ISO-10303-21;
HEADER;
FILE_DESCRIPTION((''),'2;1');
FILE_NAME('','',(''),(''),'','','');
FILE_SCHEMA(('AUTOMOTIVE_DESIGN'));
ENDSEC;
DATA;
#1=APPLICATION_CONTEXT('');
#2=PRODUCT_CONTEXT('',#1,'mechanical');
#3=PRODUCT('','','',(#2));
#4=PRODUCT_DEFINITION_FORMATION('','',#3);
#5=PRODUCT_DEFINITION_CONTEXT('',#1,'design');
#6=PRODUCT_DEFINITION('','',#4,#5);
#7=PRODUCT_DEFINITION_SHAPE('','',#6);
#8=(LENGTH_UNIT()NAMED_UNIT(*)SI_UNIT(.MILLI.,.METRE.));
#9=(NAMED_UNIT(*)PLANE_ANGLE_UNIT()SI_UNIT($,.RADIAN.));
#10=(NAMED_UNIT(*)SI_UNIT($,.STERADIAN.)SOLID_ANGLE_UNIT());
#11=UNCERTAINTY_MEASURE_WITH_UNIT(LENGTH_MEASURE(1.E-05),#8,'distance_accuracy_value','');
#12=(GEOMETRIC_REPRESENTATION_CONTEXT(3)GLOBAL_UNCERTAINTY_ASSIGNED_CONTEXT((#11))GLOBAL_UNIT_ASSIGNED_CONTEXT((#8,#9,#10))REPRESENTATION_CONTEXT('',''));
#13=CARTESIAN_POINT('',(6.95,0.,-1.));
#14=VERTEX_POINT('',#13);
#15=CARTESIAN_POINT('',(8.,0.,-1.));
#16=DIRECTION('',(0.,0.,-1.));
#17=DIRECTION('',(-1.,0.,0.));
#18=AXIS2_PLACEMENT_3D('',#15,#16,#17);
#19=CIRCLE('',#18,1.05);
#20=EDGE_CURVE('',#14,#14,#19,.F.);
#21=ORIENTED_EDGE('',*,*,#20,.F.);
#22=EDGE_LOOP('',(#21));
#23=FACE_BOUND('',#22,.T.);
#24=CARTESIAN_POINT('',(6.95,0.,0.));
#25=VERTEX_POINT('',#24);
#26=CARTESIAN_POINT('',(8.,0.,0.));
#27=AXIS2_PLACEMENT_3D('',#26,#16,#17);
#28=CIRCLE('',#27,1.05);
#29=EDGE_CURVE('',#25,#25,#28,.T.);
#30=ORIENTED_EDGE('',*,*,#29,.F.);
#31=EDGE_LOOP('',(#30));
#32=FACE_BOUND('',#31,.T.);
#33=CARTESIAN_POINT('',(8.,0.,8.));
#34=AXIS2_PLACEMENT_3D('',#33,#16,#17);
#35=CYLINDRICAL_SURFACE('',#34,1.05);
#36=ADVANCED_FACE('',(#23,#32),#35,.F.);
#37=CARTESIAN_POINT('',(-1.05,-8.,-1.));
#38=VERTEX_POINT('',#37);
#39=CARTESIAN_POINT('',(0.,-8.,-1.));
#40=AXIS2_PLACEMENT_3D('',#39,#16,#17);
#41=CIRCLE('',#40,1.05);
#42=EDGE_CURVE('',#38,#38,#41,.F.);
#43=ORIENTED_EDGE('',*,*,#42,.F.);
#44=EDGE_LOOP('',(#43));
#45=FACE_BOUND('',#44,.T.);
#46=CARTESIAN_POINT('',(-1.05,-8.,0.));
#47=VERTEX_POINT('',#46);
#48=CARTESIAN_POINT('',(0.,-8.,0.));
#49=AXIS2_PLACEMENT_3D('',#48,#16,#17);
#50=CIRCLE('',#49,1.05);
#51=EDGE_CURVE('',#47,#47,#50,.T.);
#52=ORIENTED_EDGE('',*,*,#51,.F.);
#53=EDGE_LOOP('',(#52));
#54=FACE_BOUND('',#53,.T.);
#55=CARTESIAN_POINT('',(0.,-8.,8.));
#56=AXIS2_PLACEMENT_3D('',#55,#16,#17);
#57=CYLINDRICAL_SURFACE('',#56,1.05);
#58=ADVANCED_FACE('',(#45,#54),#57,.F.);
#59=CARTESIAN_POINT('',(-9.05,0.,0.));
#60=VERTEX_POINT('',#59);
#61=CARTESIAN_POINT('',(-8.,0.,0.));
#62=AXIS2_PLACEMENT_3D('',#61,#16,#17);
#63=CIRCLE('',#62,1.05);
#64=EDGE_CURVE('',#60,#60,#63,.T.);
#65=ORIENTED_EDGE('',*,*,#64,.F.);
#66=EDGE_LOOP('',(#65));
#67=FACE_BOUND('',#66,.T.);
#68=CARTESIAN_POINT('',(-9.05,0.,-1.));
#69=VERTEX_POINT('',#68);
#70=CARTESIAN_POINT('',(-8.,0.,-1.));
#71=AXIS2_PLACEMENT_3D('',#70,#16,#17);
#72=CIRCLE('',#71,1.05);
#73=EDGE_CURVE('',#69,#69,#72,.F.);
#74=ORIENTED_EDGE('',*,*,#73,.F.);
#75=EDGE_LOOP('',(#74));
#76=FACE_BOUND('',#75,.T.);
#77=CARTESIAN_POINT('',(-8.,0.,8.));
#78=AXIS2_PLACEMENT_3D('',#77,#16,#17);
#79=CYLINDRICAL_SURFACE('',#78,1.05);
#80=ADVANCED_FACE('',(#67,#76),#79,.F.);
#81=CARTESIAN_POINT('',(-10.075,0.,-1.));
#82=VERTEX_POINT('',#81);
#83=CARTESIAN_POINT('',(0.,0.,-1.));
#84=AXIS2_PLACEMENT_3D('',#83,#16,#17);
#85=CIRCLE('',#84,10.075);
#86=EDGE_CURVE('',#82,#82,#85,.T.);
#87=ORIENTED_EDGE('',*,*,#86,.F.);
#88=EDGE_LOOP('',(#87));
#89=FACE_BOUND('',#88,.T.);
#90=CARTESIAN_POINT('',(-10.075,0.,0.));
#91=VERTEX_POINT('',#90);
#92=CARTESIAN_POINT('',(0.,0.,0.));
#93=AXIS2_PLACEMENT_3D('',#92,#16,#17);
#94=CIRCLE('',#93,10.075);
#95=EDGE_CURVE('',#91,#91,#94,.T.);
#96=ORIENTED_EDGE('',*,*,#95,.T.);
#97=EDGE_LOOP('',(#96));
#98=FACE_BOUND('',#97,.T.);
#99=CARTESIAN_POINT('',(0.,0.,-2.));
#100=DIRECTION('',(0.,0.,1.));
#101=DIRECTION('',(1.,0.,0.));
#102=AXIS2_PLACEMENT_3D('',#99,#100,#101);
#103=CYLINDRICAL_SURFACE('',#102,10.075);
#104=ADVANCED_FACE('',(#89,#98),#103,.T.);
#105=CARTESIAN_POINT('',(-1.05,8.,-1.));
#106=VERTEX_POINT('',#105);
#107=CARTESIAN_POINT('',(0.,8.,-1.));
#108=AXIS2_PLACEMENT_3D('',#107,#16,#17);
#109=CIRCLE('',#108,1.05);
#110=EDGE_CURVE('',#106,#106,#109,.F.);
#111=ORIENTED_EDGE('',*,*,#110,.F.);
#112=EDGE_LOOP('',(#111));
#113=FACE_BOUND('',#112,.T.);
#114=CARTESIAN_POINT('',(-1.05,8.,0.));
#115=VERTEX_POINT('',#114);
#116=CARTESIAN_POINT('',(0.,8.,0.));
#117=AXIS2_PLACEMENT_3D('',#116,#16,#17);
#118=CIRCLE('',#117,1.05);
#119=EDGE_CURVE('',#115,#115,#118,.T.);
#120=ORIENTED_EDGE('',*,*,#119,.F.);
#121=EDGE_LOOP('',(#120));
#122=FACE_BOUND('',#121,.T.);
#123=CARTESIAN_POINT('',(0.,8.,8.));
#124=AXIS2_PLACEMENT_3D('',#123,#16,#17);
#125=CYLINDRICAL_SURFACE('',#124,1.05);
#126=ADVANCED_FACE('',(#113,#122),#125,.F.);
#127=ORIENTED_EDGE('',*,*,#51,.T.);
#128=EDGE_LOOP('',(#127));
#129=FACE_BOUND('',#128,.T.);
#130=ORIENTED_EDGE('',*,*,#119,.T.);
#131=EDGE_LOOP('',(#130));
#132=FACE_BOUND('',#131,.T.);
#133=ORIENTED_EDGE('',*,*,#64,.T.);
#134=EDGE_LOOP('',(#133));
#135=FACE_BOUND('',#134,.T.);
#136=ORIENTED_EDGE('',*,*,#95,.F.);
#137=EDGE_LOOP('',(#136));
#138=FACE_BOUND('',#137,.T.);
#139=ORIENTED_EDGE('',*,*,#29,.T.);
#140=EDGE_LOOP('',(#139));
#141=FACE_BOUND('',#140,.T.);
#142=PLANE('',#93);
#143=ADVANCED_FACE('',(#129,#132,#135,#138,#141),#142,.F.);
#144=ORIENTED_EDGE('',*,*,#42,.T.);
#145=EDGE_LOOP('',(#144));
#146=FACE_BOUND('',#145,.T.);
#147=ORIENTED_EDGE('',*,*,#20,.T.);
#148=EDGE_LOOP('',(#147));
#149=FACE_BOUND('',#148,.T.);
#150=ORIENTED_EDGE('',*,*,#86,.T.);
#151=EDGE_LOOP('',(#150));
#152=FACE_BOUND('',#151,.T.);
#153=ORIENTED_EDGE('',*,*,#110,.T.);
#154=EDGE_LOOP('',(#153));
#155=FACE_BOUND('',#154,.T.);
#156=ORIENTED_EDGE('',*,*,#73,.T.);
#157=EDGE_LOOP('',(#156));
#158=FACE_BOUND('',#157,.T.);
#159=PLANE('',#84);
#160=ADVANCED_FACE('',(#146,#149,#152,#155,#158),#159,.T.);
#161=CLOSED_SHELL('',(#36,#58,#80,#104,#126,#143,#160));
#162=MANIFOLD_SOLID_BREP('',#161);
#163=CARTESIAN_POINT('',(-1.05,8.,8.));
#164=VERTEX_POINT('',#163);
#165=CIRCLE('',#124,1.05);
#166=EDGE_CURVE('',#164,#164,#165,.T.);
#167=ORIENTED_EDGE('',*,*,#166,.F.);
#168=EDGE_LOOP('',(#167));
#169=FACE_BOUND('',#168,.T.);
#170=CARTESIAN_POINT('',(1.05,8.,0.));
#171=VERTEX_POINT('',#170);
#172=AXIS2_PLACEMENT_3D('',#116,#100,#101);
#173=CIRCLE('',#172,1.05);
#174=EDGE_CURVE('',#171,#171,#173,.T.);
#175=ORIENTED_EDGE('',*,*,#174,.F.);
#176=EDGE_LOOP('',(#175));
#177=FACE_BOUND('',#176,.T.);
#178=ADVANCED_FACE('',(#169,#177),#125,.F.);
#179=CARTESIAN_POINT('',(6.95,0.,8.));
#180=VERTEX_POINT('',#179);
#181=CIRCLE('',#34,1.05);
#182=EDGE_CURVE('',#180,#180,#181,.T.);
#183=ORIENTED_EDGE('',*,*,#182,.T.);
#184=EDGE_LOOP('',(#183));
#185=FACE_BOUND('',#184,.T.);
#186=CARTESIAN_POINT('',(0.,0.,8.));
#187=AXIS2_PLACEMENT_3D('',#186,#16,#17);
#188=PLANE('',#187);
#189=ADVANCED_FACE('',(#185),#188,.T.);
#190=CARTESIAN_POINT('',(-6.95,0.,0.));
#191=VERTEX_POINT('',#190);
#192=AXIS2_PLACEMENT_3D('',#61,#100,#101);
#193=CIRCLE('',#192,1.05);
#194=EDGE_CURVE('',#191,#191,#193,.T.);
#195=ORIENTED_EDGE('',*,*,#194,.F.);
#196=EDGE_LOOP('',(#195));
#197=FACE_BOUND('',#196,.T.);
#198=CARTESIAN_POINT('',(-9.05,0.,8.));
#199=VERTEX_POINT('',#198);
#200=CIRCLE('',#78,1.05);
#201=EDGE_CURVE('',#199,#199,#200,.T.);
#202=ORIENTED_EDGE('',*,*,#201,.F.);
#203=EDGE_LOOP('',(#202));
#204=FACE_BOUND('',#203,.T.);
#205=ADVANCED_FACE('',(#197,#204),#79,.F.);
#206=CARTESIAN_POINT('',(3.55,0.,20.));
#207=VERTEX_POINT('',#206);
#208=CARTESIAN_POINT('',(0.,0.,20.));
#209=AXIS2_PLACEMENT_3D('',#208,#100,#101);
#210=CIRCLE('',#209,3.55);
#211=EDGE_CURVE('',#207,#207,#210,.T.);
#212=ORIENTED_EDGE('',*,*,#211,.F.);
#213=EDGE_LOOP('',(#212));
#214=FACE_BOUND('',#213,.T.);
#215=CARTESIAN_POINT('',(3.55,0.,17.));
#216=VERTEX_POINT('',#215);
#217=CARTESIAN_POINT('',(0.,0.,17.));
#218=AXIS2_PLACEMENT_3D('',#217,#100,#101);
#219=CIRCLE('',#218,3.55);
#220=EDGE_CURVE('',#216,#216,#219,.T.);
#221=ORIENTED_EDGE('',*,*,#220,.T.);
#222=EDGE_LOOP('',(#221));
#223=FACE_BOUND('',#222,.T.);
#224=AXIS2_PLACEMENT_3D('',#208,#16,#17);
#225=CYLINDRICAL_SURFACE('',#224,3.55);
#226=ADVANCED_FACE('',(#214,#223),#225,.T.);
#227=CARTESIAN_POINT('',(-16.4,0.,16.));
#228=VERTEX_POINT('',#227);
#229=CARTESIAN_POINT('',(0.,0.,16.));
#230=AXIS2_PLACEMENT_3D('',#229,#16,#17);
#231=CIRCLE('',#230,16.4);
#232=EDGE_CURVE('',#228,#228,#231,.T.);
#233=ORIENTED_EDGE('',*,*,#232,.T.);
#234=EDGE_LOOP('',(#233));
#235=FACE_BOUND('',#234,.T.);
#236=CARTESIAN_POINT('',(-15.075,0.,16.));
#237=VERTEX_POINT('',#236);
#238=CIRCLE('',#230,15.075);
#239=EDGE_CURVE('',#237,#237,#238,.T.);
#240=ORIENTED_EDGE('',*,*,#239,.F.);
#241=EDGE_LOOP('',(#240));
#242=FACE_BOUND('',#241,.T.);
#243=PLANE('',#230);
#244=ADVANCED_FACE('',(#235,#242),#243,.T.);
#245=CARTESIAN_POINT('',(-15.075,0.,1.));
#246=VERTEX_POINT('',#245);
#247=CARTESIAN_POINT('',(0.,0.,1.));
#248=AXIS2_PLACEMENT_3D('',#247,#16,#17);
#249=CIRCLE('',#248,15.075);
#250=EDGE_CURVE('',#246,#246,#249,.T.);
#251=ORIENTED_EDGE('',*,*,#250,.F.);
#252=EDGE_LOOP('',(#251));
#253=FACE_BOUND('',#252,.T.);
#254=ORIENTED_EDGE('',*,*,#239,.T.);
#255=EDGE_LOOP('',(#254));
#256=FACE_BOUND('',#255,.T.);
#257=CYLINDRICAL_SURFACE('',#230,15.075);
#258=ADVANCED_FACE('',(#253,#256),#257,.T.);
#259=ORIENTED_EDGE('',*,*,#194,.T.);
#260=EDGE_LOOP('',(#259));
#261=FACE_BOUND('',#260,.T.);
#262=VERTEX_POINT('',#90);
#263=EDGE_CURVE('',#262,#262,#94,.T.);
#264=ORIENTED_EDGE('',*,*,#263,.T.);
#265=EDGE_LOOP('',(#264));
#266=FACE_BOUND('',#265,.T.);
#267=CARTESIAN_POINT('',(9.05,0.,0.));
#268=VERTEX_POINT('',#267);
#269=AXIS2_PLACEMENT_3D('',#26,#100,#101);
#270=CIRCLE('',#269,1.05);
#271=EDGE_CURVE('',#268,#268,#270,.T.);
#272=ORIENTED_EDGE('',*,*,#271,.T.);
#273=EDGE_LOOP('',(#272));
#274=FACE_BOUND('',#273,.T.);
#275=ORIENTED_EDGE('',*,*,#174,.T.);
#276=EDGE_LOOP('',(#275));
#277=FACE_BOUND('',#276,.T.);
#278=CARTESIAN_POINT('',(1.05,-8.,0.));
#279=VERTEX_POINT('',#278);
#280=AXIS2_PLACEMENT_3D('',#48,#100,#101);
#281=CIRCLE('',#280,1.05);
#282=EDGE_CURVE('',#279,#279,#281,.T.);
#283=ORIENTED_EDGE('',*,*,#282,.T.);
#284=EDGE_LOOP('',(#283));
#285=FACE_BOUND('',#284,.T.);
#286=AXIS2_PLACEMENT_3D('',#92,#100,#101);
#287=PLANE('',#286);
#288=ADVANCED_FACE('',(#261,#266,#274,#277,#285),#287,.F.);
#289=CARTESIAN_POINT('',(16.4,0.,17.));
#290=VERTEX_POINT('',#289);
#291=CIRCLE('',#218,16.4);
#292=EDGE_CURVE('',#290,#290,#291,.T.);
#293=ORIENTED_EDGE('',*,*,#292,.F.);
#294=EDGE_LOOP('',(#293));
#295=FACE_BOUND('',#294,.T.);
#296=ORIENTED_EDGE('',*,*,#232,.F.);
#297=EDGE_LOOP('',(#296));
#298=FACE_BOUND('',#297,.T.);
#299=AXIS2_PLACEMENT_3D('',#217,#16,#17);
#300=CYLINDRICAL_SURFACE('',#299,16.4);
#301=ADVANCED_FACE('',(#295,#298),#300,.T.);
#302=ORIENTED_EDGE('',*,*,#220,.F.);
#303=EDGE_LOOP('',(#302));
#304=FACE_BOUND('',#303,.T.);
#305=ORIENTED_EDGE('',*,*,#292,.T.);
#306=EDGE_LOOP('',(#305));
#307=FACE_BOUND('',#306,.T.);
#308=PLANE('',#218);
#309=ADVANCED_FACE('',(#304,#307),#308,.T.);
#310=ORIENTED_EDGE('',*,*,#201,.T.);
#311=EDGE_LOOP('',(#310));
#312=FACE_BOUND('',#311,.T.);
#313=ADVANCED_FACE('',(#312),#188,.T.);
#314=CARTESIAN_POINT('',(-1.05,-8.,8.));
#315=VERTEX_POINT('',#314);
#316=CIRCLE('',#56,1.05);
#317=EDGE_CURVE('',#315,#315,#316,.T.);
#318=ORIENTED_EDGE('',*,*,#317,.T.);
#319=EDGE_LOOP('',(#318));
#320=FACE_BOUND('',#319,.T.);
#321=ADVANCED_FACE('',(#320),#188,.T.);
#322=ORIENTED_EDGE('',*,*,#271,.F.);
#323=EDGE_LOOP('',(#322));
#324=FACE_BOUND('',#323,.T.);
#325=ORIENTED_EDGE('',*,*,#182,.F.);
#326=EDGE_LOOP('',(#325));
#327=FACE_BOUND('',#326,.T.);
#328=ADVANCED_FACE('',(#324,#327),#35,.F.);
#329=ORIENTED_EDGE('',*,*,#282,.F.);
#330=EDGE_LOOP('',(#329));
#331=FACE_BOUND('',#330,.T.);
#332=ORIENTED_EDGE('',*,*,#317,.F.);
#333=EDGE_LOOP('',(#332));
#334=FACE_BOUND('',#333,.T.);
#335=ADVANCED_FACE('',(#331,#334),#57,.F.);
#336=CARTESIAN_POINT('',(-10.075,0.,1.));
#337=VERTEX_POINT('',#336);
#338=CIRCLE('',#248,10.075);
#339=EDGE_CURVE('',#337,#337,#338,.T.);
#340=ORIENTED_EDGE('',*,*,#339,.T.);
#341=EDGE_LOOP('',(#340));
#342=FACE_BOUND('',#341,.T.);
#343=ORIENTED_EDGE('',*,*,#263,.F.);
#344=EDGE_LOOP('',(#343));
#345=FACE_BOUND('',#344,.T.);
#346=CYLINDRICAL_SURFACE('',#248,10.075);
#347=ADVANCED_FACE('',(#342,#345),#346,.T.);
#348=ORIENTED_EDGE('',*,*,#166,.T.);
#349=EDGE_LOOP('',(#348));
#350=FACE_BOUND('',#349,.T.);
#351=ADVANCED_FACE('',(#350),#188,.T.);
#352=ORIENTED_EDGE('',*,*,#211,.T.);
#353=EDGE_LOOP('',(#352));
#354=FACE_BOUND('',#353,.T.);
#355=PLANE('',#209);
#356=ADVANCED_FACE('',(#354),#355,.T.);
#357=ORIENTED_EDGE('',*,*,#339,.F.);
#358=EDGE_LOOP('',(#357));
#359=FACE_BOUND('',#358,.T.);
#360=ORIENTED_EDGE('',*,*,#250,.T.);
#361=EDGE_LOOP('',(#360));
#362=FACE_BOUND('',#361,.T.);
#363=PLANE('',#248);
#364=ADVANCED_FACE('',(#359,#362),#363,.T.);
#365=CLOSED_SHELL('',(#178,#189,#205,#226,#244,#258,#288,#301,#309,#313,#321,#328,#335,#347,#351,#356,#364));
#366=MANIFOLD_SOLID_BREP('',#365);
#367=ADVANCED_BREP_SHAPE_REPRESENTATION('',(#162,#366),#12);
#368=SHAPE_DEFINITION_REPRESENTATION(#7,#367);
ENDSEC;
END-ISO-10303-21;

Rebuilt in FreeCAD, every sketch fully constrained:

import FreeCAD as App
import Part
import Sketcher

V = App.Vector

doc = App.newDocument("Part")
body = doc.addObject("PartDesign::Body", "Body")

# Sketch on XY plane
sketch1 = body.newObject("Sketcher::SketchObject", "Sketch")
sketch1.AttachmentSupport = (doc.getObject("XY_Plane"), [""])
sketch1.MapMode = "FlatFace"
sketch1.addGeometry(Part.Circle(V(0, 0, 0), V(0, 0, 1), 16), False)
sketch1.addConstraint(Sketcher.Constraint("Coincident", 0, 3, -1, 1))
sketch1.addConstraint(Sketcher.Constraint("Diameter", 0, 32.8))
pad1 = body.newObject("PartDesign::Pad", "Pad")
pad1.Profile = sketch1
pad1.Length = 17

# Sketch on XY plane
sketch2 = body.newObject("Sketcher::SketchObject", "Sketch001")
sketch2.AttachmentSupport = (doc.getObject("XY_Plane"), [""])
sketch2.MapMode = "FlatFace"
sketch2.AttachmentOffset = App.Placement(V(0, 0, 17), App.Rotation())
sketch2.addGeometry(Part.Circle(V(0, 0, 0), V(0, 0, 1), 3.5), False)
sketch2.addConstraint(Sketcher.Constraint("Coincident", 0, 3, -1, 1))
sketch2.addConstraint(Sketcher.Constraint("Diameter", 0, 7.1))
pad2 = body.newObject("PartDesign::Pad", "Pad001")
pad2.Profile = sketch2
pad2.Length = 3
body2 = doc.addObject("PartDesign::Body", "Body001")

# Sketch on XY plane
sketch3 = body2.newObject("Sketcher::SketchObject", "Sketch002")
sketch3.AttachmentSupport = (doc.getObject("XY_Plane001"), [""])
sketch3.MapMode = "FlatFace"
sketch3.addGeometry(Part.Circle(V(0, 0, 0), V(0, 0, 1), 10), False)
sketch3.addConstraint(Sketcher.Constraint("Coincident", 0, 3, -1, 1))
sketch3.addConstraint(Sketcher.Constraint("Diameter", 0, 20.15))
pad3 = body2.newObject("PartDesign::Pad", "Pad002")
pad3.Profile = sketch3
pad3.Length = 2
pad3.Reversed = True
body3 = doc.addObject("PartDesign::Body", "Body002")
body3.AllowCompound = True

# Sketch on XY plane
sketch4 = body3.newObject("Sketcher::SketchObject", "Sketch003")
sketch4.AttachmentSupport = (doc.getObject("XY_Plane002"), [""])
sketch4.MapMode = "FlatFace"
sketch4.AttachmentOffset = App.Placement(V(0, 0, -2), App.Rotation())
sketch4.addGeometry(Part.Circle(V(0, 8, 0), V(0, 0, 1), 1.1), False)
sketch4.addGeometry(Part.Circle(V(-8, 0, 0), V(0, 0, 1), 1.1), False)
sketch4.addGeometry(Part.Circle(V(0, -8, 0), V(0, 0, 1), 1.1), False)
sketch4.addGeometry(Part.Circle(V(8, 0, 0), V(0, 0, 1), 1.1), False)
sketch4.addConstraint(Sketcher.Constraint("Equal", 0, 1))
sketch4.addConstraint(Sketcher.Constraint("Equal", 1, 2))
sketch4.addConstraint(Sketcher.Constraint("Equal", 2, 3))
sketch4.addConstraint(Sketcher.Constraint("Symmetric", 0, 3, 2, 3, -1, 1))
sketch4.addConstraint(Sketcher.Constraint("Symmetric", 1, 3, 3, 3, -1, 1))
sketch4.addConstraint(Sketcher.Constraint("PointOnObject", 0, 3, -2))
sketch4.addConstraint(Sketcher.Constraint("PointOnObject", 1, 3, -1))
sketch4.addConstraint(Sketcher.Constraint("Diameter", 0, 2.1))
sketch4.addConstraint(Sketcher.Constraint("DistanceY", -1, 1, 0, 3, 8.0))
sketch4.addConstraint(Sketcher.Constraint("DistanceX", 1, 3, -1, 1, 8.0))
pad4 = body3.newObject("PartDesign::Pad", "Pad003")
pad4.Profile = sketch4
pad4.Length = 10
doc.recompute()

body4 = doc.addObject("PartDesign::Body", "Body003")
body4.BaseFeature = body3
boolean = body.newObject("PartDesign::Boolean", "Boolean")
boolean.Type = "Cut"
boolean.addObjects([body4])
doc.recompute()

# Sketch on XY plane
sketch5 = body.newObject("Sketcher::SketchObject", "Sketch004")
sketch5.AttachmentSupport = (doc.getObject("XY_Plane"), [""])
sketch5.MapMode = "FlatFace"
sketch5.addGeometry(Part.Circle(V(0, 0, 0), V(0, 0, 1), 16), False)
sketch5.addGeometry(Part.Circle(V(0, 0, 0), V(0, 0, 1), 15), False)
sketch5.addConstraint(Sketcher.Constraint("Coincident", 0, 3, -1, 1))
sketch5.addConstraint(Sketcher.Constraint("Coincident", 1, 3, -1, 1))
sketch5.addConstraint(Sketcher.Constraint("Diameter", 0, 32.8))
sketch5.addConstraint(Sketcher.Constraint("Diameter", 1, 30.15))
pocket1 = body.newObject("PartDesign::Pocket", "Pocket")
pocket1.Profile = sketch5
pocket1.Length = 16
pocket1.Reversed = True

# Sketch on XY plane
sketch6 = body.newObject("Sketcher::SketchObject", "Sketch005")
sketch6.AttachmentSupport = (doc.getObject("XY_Plane"), [""])
sketch6.MapMode = "FlatFace"
sketch6.addGeometry(Part.Circle(V(0, 0, 0), V(0, 0, 1), 15), False)
sketch6.addGeometry(Part.Circle(V(0, 0, 0), V(0, 0, 1), 10), False)
sketch6.addConstraint(Sketcher.Constraint("Coincident", 0, 3, -1, 1))
sketch6.addConstraint(Sketcher.Constraint("Coincident", 1, 3, -1, 1))
sketch6.addConstraint(Sketcher.Constraint("Diameter", 0, 30.15))
sketch6.addConstraint(Sketcher.Constraint("Diameter", 1, 20.15))
pocket2 = body.newObject("PartDesign::Pocket", "Pocket001")
pocket2.Profile = sketch6
pocket2.Length = 1
pocket2.Reversed = True
doc.recompute()

boolean2 = body2.newObject("PartDesign::Boolean", "Boolean001")
boolean2.Type = "Cut"
boolean2.addObjects([body3])

# Sketch on XY plane
sketch7 = body2.newObject("Sketcher::SketchObject", "Sketch006")
sketch7.AttachmentSupport = (doc.getObject("XY_Plane001"), [""])
sketch7.MapMode = "FlatFace"
sketch7.AttachmentOffset = App.Placement(V(0, 0, -2), App.Rotation())
sketch7.addGeometry(Part.Circle(V(0, 0, 0), V(0, 0, 1), 10), False)
sketch7.addConstraint(Sketcher.Constraint("Coincident", 0, 3, -1, 1))
sketch7.addConstraint(Sketcher.Constraint("Diameter", 0, 20.15))
pocket3 = body2.newObject("PartDesign::Pocket", "Pocket002")
pocket3.Profile = sketch7
pocket3.Length = 1
pocket3.Reversed = True

doc.recompute()
